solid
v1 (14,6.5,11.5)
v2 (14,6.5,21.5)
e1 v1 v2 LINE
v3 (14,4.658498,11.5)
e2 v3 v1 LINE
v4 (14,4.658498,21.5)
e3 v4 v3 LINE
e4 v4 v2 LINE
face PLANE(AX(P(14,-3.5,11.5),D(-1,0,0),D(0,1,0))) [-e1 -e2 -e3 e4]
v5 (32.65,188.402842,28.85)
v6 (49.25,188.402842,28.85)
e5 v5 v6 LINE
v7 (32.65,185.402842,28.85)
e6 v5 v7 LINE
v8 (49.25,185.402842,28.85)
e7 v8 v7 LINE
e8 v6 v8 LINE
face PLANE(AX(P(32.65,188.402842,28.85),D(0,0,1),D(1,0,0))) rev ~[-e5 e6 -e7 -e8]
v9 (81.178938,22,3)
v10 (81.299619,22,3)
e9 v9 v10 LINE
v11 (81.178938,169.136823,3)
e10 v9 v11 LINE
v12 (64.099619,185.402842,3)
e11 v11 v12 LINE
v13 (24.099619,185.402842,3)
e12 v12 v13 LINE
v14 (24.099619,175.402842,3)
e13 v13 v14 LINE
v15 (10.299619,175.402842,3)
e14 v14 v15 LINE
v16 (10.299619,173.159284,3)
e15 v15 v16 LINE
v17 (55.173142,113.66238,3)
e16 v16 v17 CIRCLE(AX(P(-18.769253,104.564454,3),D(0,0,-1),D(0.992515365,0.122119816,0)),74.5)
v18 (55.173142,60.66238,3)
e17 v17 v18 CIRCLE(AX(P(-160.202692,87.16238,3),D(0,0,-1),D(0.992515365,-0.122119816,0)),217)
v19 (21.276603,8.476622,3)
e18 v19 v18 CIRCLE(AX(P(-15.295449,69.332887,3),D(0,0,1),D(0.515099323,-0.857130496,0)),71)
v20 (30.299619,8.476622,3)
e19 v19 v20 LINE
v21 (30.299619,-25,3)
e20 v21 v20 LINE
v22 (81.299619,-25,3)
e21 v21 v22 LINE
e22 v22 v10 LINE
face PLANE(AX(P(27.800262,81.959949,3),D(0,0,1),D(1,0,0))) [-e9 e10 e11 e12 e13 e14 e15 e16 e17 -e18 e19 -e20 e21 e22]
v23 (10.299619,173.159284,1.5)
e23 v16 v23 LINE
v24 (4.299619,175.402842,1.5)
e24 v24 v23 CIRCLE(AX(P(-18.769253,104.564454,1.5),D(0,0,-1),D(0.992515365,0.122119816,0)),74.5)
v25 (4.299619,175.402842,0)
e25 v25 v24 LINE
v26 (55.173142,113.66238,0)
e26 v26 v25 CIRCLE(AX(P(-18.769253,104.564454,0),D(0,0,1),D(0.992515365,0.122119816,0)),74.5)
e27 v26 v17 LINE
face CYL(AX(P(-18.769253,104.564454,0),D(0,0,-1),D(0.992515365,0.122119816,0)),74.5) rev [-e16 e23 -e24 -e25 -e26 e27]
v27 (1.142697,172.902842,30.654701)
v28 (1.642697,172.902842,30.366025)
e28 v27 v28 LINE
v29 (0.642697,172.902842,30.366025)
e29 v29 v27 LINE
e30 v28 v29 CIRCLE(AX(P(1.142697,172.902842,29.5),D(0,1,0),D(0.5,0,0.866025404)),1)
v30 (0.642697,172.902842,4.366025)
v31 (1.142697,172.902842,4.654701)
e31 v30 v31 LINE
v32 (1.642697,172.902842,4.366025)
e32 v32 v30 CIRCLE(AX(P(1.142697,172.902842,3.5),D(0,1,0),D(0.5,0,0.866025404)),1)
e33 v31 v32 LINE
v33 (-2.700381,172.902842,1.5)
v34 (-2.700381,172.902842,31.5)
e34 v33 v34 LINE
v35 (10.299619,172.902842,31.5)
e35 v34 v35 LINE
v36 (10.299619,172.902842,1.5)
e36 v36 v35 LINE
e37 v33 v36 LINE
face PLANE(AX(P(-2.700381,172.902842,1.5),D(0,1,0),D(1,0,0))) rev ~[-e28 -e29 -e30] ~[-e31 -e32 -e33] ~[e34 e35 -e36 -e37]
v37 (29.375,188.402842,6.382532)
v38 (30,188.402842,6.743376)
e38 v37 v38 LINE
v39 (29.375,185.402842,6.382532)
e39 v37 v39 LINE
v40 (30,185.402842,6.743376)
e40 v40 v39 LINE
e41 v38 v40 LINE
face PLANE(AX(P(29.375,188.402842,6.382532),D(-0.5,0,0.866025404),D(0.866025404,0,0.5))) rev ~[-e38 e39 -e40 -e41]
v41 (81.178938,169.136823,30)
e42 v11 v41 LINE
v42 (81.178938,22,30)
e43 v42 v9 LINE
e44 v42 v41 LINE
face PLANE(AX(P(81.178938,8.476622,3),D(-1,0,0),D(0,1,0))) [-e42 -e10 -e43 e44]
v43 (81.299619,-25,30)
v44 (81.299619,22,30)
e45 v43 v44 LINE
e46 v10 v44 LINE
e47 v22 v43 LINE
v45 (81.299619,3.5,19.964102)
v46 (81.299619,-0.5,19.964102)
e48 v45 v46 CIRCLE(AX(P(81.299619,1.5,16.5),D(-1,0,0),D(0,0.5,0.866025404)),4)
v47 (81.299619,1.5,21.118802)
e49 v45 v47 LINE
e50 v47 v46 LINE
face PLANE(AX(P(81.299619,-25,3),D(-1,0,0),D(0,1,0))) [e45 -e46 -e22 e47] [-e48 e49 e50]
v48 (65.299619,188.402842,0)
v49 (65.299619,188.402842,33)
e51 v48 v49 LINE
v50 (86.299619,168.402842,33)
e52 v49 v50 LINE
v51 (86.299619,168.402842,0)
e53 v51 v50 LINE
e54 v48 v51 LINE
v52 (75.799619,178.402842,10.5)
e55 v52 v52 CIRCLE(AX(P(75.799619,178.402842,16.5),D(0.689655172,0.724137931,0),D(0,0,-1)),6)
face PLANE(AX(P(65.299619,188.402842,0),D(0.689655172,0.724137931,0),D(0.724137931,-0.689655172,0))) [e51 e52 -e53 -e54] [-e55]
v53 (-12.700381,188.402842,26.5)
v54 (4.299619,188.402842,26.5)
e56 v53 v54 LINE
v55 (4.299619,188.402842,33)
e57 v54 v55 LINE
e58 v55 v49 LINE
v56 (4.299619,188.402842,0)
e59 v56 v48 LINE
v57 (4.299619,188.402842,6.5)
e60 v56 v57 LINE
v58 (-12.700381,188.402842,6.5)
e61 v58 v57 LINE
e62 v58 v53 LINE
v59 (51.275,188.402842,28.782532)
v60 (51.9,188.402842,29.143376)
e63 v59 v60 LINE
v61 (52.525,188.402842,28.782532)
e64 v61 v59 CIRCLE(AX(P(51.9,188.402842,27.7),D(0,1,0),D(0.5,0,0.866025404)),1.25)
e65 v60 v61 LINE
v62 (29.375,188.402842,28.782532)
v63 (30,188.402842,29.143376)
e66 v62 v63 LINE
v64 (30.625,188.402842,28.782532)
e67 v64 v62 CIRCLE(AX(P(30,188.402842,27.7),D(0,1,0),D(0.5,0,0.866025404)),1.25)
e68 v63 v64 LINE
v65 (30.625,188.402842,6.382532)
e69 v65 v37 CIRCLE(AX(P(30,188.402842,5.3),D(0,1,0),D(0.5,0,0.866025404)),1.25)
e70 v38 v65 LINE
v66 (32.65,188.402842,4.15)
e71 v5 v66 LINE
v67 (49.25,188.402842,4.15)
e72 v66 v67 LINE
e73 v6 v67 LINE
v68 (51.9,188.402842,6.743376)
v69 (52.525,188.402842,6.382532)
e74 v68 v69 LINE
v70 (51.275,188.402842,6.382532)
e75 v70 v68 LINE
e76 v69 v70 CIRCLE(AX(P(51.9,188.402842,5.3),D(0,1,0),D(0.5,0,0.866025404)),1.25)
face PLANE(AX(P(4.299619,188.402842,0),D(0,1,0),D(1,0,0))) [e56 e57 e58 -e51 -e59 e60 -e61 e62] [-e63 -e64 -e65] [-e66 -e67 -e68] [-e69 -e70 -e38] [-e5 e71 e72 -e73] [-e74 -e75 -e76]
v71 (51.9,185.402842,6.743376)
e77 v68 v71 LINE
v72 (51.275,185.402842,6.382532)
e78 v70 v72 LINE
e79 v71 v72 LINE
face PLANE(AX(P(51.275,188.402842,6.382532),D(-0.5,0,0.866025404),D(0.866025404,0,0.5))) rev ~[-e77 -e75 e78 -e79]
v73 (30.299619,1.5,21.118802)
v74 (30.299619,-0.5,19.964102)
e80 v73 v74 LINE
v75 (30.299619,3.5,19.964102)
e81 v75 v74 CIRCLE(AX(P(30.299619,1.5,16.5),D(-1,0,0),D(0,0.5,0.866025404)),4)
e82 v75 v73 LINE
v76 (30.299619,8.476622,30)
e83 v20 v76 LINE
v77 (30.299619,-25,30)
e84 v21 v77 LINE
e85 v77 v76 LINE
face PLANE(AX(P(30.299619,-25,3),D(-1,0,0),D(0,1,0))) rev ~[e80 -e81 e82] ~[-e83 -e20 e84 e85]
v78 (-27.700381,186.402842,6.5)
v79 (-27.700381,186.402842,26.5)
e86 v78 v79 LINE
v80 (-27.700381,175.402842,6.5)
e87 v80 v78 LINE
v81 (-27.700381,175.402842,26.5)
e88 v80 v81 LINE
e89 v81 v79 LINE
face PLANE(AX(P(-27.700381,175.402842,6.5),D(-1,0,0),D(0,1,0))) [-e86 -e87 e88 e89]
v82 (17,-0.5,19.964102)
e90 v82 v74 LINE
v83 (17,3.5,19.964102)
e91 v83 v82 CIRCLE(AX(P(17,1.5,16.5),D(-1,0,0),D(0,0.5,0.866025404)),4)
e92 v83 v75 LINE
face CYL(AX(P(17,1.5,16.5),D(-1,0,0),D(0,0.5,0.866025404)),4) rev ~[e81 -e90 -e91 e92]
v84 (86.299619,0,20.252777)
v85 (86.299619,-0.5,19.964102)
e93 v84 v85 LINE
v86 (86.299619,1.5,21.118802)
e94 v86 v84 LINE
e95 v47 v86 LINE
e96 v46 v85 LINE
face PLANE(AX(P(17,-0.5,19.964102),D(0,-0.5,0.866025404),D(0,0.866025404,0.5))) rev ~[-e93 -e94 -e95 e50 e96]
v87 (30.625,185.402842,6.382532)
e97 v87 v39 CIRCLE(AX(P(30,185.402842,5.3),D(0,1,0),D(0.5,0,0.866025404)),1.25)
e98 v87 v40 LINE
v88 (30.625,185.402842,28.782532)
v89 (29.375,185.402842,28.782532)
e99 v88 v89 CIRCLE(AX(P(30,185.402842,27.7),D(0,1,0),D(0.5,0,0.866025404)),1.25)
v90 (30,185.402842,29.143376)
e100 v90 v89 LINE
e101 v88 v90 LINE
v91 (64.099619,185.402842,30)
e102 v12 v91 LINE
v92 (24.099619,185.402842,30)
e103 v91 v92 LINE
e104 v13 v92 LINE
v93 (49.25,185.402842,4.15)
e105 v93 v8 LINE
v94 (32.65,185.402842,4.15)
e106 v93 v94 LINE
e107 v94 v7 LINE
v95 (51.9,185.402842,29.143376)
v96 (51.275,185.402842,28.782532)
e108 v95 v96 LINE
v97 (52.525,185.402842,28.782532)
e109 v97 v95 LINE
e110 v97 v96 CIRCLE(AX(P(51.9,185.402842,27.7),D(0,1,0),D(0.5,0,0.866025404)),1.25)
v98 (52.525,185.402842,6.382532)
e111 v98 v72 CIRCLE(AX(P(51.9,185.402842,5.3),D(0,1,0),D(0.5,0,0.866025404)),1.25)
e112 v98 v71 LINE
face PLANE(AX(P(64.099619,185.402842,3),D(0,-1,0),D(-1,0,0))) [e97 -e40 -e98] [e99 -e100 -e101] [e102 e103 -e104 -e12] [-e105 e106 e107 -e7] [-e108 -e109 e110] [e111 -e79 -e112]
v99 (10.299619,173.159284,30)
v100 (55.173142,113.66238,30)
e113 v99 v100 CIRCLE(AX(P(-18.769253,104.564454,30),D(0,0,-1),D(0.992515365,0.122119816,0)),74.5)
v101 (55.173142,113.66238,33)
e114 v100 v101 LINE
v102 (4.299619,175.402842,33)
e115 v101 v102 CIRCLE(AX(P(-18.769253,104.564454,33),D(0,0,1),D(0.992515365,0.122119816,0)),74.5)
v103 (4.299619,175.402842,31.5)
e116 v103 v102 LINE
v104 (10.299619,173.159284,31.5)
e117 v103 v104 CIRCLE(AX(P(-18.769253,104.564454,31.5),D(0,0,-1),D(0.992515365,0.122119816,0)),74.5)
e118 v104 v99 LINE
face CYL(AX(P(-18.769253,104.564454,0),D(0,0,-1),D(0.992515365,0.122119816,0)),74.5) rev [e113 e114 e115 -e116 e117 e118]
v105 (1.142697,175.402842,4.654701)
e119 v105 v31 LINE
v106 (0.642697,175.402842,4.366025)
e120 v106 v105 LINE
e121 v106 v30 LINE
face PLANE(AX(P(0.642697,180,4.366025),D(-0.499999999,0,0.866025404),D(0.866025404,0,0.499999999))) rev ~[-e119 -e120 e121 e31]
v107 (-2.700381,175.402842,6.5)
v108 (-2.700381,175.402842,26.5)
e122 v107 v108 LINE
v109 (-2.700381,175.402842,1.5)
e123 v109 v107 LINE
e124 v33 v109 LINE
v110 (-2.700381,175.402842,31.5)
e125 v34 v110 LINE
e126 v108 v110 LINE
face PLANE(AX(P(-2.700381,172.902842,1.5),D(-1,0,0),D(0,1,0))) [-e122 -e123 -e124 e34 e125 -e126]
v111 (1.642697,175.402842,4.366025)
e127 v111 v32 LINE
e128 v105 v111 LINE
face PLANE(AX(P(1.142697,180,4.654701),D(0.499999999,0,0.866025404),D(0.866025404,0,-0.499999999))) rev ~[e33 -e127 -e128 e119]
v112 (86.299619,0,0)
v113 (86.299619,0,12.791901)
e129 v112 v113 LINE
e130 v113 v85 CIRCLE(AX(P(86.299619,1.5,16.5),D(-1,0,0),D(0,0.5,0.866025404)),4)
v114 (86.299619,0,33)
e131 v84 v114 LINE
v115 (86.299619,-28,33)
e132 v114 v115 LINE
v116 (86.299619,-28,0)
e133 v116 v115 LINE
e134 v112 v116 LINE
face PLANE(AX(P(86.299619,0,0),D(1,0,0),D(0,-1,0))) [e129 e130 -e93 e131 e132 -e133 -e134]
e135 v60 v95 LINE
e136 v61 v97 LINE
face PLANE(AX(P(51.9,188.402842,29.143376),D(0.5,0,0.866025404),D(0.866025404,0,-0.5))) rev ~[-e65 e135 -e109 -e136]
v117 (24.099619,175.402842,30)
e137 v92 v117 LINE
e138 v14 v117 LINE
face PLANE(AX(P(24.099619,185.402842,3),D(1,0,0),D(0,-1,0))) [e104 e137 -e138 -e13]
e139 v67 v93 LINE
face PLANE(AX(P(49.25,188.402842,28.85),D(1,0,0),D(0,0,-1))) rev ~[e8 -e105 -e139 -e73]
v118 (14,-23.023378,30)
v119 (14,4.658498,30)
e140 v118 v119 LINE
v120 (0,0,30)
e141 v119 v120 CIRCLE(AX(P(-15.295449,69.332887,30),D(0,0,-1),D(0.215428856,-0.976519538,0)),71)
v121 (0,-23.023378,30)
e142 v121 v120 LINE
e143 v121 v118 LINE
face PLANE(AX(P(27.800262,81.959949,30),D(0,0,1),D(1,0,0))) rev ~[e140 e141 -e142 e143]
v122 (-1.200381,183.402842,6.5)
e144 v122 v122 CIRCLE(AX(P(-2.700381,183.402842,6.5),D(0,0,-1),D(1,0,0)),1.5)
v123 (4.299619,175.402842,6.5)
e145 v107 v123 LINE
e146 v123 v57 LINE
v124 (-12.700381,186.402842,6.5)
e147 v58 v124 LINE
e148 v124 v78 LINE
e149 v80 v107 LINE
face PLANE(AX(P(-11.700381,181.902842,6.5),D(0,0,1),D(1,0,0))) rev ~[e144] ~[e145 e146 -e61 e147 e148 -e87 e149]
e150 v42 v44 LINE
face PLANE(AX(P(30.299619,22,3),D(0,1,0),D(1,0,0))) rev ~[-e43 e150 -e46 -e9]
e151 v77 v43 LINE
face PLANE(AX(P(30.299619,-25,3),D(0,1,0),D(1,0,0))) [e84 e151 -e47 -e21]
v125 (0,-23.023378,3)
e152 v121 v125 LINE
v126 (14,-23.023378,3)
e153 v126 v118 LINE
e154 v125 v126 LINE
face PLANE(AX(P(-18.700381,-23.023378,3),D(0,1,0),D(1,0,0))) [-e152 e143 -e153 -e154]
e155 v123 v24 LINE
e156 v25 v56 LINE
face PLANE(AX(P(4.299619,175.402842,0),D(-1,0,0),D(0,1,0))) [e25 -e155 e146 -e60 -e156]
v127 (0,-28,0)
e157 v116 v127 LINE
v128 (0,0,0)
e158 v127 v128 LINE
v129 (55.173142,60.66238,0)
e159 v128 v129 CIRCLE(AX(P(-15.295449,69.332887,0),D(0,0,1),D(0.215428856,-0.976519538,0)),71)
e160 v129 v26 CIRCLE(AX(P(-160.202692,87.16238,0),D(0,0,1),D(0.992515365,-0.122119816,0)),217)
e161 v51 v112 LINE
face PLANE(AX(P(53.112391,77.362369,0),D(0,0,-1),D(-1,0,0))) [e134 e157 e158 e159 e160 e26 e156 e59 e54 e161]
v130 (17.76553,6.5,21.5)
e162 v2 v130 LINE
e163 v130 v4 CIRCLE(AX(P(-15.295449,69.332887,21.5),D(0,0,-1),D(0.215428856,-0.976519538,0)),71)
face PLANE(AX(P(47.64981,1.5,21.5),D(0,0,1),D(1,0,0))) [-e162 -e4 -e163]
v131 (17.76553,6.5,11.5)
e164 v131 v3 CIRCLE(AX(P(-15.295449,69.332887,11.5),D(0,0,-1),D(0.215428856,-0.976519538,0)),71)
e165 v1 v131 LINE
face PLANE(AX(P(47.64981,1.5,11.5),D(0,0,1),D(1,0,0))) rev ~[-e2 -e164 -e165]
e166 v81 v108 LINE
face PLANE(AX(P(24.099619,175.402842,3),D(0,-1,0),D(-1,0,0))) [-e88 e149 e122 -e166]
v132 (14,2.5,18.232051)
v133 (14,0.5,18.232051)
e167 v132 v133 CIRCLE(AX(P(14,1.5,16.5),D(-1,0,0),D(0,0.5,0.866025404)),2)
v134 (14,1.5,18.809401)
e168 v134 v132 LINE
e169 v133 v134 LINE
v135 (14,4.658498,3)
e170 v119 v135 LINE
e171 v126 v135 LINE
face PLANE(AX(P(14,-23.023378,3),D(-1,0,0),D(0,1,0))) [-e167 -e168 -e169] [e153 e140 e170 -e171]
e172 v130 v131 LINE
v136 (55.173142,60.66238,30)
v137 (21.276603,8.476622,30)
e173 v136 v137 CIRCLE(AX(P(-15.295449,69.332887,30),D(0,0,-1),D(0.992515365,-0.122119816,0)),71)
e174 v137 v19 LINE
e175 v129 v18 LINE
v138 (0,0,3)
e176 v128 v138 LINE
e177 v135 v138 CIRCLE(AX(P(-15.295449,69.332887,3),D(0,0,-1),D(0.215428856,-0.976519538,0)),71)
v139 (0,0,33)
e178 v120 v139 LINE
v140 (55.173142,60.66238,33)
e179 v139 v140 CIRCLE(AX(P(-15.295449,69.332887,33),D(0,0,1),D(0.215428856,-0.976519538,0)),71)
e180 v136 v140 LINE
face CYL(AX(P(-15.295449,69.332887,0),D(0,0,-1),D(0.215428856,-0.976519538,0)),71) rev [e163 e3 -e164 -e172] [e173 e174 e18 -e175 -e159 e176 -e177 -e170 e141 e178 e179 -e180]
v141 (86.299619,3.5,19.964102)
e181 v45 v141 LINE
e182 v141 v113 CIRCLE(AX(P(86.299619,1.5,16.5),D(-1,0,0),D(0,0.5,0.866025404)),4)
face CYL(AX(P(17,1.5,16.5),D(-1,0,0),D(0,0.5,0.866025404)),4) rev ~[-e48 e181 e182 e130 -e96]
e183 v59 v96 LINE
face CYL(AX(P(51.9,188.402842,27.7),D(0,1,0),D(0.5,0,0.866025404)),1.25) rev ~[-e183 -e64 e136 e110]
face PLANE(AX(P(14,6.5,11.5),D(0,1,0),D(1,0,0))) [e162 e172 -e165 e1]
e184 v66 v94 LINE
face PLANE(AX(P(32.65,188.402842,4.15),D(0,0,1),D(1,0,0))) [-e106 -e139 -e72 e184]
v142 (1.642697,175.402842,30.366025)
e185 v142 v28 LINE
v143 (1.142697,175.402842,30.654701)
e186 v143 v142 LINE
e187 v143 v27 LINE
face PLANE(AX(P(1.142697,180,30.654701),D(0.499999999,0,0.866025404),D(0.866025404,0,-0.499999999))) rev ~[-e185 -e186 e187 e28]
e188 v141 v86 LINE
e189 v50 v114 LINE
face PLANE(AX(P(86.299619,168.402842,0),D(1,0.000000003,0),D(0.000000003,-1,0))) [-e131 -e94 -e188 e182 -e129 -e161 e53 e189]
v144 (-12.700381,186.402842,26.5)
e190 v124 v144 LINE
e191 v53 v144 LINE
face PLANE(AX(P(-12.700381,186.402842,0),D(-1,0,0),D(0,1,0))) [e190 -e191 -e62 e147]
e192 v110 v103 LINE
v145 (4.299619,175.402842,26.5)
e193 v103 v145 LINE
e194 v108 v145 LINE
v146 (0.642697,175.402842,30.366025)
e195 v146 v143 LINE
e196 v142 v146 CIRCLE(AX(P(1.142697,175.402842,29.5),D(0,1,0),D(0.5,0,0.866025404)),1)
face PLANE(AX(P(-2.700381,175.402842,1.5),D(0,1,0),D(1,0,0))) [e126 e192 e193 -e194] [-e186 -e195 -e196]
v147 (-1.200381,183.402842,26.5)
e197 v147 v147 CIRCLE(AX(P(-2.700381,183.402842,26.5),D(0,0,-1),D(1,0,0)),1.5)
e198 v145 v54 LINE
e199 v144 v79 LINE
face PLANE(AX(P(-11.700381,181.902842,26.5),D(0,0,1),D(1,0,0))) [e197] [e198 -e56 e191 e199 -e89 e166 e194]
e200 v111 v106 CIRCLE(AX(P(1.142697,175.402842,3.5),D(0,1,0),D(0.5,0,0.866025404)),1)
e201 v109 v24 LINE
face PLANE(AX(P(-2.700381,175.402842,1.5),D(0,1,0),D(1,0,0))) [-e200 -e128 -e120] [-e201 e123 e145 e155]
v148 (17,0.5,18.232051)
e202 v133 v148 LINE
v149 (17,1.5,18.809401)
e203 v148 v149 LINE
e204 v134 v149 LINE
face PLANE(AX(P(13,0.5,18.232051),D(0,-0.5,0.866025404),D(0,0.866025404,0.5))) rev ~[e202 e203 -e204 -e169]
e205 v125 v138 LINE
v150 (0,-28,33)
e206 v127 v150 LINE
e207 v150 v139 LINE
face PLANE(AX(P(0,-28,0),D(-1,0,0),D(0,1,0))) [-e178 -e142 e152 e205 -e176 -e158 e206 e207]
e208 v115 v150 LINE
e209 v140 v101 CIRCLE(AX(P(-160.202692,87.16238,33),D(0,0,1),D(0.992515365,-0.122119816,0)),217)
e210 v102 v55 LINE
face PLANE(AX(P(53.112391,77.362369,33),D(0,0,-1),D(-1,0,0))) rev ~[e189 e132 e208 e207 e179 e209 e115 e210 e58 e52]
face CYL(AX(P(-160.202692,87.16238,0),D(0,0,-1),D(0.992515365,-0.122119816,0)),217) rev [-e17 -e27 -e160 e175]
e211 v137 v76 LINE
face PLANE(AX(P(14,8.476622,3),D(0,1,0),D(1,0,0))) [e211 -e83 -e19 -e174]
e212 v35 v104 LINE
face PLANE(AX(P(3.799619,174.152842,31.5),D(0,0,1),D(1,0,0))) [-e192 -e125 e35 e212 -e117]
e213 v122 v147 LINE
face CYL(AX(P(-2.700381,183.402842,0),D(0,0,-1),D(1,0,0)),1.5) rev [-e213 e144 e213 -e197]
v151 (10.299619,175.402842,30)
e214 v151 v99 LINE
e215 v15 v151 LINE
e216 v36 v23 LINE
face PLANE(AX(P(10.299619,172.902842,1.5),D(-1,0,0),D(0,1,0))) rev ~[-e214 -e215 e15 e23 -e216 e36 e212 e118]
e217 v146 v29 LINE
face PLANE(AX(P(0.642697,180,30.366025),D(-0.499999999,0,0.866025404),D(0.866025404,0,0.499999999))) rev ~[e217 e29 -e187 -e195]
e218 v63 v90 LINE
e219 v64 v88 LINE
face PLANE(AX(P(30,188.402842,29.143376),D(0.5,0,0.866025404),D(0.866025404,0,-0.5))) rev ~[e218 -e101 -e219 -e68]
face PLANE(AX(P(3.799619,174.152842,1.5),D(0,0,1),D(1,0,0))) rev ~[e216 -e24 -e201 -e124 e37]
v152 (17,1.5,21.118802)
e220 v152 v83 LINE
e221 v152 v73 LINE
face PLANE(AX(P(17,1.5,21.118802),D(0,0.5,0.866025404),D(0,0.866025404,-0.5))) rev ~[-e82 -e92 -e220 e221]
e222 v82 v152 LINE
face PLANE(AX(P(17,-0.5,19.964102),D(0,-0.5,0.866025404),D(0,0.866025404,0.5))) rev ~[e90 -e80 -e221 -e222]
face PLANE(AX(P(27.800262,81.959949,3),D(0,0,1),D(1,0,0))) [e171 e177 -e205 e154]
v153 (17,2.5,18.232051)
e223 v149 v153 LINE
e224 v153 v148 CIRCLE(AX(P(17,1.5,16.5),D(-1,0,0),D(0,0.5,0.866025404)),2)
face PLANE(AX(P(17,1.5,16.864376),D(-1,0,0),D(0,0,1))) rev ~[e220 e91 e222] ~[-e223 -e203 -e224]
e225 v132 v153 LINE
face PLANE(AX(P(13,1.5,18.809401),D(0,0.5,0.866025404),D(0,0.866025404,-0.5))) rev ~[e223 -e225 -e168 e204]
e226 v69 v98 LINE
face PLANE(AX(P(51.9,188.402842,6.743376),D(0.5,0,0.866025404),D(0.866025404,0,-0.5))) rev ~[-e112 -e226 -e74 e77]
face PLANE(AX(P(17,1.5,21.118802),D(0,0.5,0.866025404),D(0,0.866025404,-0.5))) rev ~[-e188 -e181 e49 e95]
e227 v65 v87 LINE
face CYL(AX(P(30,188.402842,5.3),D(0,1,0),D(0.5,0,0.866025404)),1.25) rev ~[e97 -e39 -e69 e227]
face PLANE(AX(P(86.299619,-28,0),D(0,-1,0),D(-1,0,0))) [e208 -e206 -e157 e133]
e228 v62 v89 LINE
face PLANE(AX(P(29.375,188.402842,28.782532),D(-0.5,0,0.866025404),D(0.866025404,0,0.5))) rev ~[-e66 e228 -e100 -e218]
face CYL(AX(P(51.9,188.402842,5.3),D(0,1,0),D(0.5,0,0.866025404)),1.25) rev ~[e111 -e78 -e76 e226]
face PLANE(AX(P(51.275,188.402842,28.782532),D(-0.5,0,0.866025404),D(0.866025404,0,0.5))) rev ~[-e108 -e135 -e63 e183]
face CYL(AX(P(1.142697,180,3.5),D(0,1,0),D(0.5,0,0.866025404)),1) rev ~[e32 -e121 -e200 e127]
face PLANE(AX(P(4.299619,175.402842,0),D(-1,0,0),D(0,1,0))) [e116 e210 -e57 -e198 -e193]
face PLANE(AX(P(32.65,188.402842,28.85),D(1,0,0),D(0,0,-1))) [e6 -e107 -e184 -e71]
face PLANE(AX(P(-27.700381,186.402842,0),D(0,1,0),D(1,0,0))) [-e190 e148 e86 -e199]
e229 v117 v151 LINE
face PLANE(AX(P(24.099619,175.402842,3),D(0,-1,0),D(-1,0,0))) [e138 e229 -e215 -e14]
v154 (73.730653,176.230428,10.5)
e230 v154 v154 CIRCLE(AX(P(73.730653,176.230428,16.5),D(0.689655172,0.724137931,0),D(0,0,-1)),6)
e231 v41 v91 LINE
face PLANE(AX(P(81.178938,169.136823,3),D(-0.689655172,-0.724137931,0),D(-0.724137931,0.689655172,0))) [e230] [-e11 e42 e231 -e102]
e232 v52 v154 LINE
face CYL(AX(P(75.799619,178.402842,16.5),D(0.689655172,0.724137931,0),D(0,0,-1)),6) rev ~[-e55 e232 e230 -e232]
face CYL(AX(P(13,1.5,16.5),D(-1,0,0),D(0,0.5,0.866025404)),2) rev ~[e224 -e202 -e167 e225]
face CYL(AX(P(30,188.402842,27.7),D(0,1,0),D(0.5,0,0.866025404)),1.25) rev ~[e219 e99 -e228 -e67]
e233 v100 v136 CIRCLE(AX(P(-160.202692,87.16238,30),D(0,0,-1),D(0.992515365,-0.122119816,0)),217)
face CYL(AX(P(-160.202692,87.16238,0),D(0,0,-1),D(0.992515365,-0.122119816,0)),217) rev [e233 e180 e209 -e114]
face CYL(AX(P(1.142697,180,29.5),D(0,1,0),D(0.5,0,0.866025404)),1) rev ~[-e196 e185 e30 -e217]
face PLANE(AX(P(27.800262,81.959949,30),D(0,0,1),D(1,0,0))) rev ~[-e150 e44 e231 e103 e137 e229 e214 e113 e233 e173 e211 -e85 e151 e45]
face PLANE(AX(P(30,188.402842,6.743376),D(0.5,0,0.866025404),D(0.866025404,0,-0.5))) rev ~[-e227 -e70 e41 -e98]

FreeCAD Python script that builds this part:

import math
import FreeCAD as App
import Part
import Sketcher
from FreeCAD import Vector
Q = App.Units.Quantity

doc = App.newDocument("Part")
body = doc.addObject("PartDesign::Body", "Body")

# Sketch on XY plane
sketch1 = doc.addObject("Sketcher::SketchObject", "Sketch")
body.addObject(sketch1)
sketch1.AttachmentSupport = (doc.XY_Plane, [""])
sketch1.MapMode = "FlatFace"
sketch1.addGeometry(Part.LineSegment(Vector(4, 188, 0), Vector(4, 175, 0)), False)
sketch1.addGeometry(Part.ArcOfCircle(Part.Circle(Vector(-19, 105, 0), Vector(0, 0, 1), 75), math.radians(7), math.radians(72)), False)
sketch1.addGeometry(Part.ArcOfCircle(Part.Circle(Vector(-160, 87, 0), Vector(0, 0, 1), 217), math.radians(-7.01), math.radians(7.01)), False)
sketch1.addGeometry(Part.ArcOfCircle(Part.Circle(Vector(-15, 69, 0), Vector(0, 0, 1), 71), math.radians(-78), math.radians(-7)), False)
sketch1.addGeometry(Part.LineSegment(Vector(0, 0, 0), Vector(0, -28, 0)), False)
sketch1.addGeometry(Part.LineSegment(Vector(0, -28, 0), Vector(86, -28, 0)), False)
sketch1.addGeometry(Part.LineSegment(Vector(86, -28, 0), Vector(86, 0, 0)), False)
sketch1.addGeometry(Part.LineSegment(Vector(86, 0, 0), Vector(86, 168, 0)), False)
sketch1.addGeometry(Part.LineSegment(Vector(86, 168, 0), Vector(65, 188, 0)), False)
sketch1.addGeometry(Part.LineSegment(Vector(65, 188, 0), Vector(4, 188, 0)), False)
sketch1.addConstraint(Sketcher.Constraint("Coincident", 0, 2, 1, 2))
sketch1.addConstraint(Sketcher.Constraint("Tangent", 1, 1, 2, 2))
sketch1.addConstraint(Sketcher.Constraint("Tangent", 2, 1, 3, 2))
sketch1.addConstraint(Sketcher.Constraint("Coincident", 3, 1, 4, 1))
sketch1.addConstraint(Sketcher.Constraint("Coincident", 4, 2, 5, 1))
sketch1.addConstraint(Sketcher.Constraint("Coincident", 5, 2, 6, 1))
sketch1.addConstraint(Sketcher.Constraint("Coincident", 6, 2, 7, 1))
sketch1.addConstraint(Sketcher.Constraint("Coincident", 7, 2, 8, 1))
sketch1.addConstraint(Sketcher.Constraint("Coincident", 8, 2, 9, 1))
sketch1.addConstraint(Sketcher.Constraint("Coincident", 9, 2, 0, 1))
sketch1.addConstraint(Sketcher.Constraint("Vertical", 0))
sketch1.addConstraint(Sketcher.Constraint("Vertical", 4))
sketch1.addConstraint(Sketcher.Constraint("Horizontal", 5))
sketch1.addConstraint(Sketcher.Constraint("Vertical", 6))
sketch1.addConstraint(Sketcher.Constraint("Vertical", 7))
sketch1.addConstraint(Sketcher.Constraint("Horizontal", 9))
sketch1.addConstraint(Sketcher.Constraint("Coincident", 3, 1, -1, 1))
sketch1.addConstraint(Sketcher.Constraint("PointOnObject", 6, 2, -1))
sketch1.addConstraint(Sketcher.Constraint("Vertical", 1, 1, 2, 1))
sketch1.addConstraint(Sketcher.Constraint("Radius", 2, 217.0))
sketch1.addConstraint(Sketcher.Constraint("Radius", 3, 71.0))
sketch1.addConstraint(Sketcher.Constraint("Radius", 1, 74.5))
sketch1.addConstraint(Sketcher.Constraint("DistanceX", 9, 2, 9, 1, 61.0))
sketch1.addConstraint(Sketcher.Constraint("DistanceY", 0, 2, 0, 1, 13.0))
sketch1.addConstraint(Sketcher.Constraint("DistanceY", 4, 2, 4, 1, 28.0))
sketch1.addConstraint(Sketcher.Constraint("Distance", 8, 29.0))
sketch1.addConstraint(Sketcher.Constraint("DistanceY", 2, 1, 1, 1, 53.0))
sketch1.addConstraint(Sketcher.Constraint("DistanceX", 0, 2, 7, 2, 82.0))
sketch1.addConstraint(Sketcher.Constraint("DistanceX", 5, 1, 5, 2, 86.299619))
sketch1.addConstraint(Sketcher.Constraint("DistanceY", 7, 1, 7, 2, 168.402842))
pad1 = doc.addObject("PartDesign::Pad", "Pad")
body.addObject(pad1)
pad1.Profile = sketch1
pad1.Length = 33

# Sketch on XY plane
sketch2 = doc.addObject("Sketcher::SketchObject", "Sketch001")
body.addObject(sketch2)
sketch2.AttachmentSupport = (doc.XY_Plane, [""])
sketch2.MapMode = "FlatFace"
sketch2.AttachmentOffset = App.Placement(Vector(0, 0, 3), App.Rotation())
sketch2.addGeometry(Part.LineSegment(Vector(24, 175, 0), Vector(4, 175, 0)), False)
sketch2.addGeometry(Part.LineSegment(Vector(4, 175, 0), Vector(4, 169, 0)), False)
sketch2.addGeometry(Part.LineSegment(Vector(4, 169, 0), Vector(-19, 169, 0)), False)
sketch2.addGeometry(Part.LineSegment(Vector(-19, 169, 0), Vector(-19, -23, 0)), False)
sketch2.addGeometry(Part.LineSegment(Vector(-19, -23, 0), Vector(14, -23, 0)), False)
sketch2.addGeometry(Part.LineSegment(Vector(14, -23, 0), Vector(14, 8, 0)), False)
sketch2.addGeometry(Part.LineSegment(Vector(14, 8, 0), Vector(81, 8, 0)), False)
sketch2.addGeometry(Part.LineSegment(Vector(81, 8, 0), Vector(81, 169, 0)), False)
sketch2.addGeometry(Part.LineSegment(Vector(81, 169, 0), Vector(64, 185, 0)), False)
sketch2.addGeometry(Part.LineSegment(Vector(64, 185, 0), Vector(24, 185, 0)), False)
sketch2.addGeometry(Part.LineSegment(Vector(24, 185, 0), Vector(24, 175, 0)), False)
sketch2.addConstraint(Sketcher.Constraint("Coincident", 0, 2, 1, 1))
sketch2.addConstraint(Sketcher.Constraint("Coincident", 1, 2, 2, 1))
sketch2.addConstraint(Sketcher.Constraint("Coincident", 2, 2, 3, 1))
sketch2.addConstraint(Sketcher.Constraint("Coincident", 3, 2, 4, 1))
sketch2.addConstraint(Sketcher.Constraint("Coincident", 4, 2, 5, 1))
sketch2.addConstraint(Sketcher.Constraint("Coincident", 5, 2, 6, 1))
sketch2.addConstraint(Sketcher.Constraint("Coincident", 6, 2, 7, 1))
sketch2.addConstraint(Sketcher.Constraint("Coincident", 7, 2, 8, 1))
sketch2.addConstraint(Sketcher.Constraint("Coincident", 8, 2, 9, 1))
sketch2.addConstraint(Sketcher.Constraint("Coincident", 9, 2, 10, 1))
sketch2.addConstraint(Sketcher.Constraint("Coincident", 10, 2, 0, 1))
sketch2.addConstraint(Sketcher.Constraint("Horizontal", 0))
sketch2.addConstraint(Sketcher.Constraint("Vertical", 1))
sketch2.addConstraint(Sketcher.Constraint("Horizontal", 2))
sketch2.addConstraint(Sketcher.Constraint("Vertical", 3))
sketch2.addConstraint(Sketcher.Constraint("Horizontal", 4))
sketch2.addConstraint(Sketcher.Constraint("Vertical", 5))
sketch2.addConstraint(Sketcher.Constraint("Horizontal", 6))
sketch2.addConstraint(Sketcher.Constraint("Vertical", 7))
sketch2.addConstraint(Sketcher.Constraint("Horizontal", 9))
sketch2.addConstraint(Sketcher.Constraint("Vertical", 10))
sketch2.addConstraint(Sketcher.Constraint("Horizontal", 2, 2, 7, 2))
sketch2.addConstraint(Sketcher.Constraint("DistanceX", 2, 2, 2, 1, 23.0))
sketch2.addConstraint(Sketcher.Constraint("DistanceX", 9, 2, 9, 1, 40.0))
sketch2.addConstraint(Sketcher.Constraint("DistanceY", 10, 2, 10, 1, 10.0))
sketch2.addConstraint(Sketcher.Constraint("DistanceX", 0, 2, 0, 1, 19.8))
sketch2.addConstraint(Sketcher.Constraint("DistanceY", 5, 1, 5, 2, 31.5))
sketch2.addConstraint(Sketcher.Constraint("DistanceX", -1, 1, 4, 2, 14.0))
sketch2.addConstraint(Sketcher.Constraint("DistanceY", 3, 2, 3, 1, 192.160201))
sketch2.addConstraint(Sketcher.Constraint("DistanceX", 4, 1, 4, 2, 32.700381))
sketch2.addConstraint(Sketcher.Constraint("DistanceX", 6, 1, 6, 2, 67.178938))
sketch2.addConstraint(Sketcher.Constraint("DistanceY", 1, 2, 1, 1, 6.266019))
sketch2.addConstraint(Sketcher.Constraint("DistanceY", -1, 1, 0, 2, 175.402842))
pocket1 = doc.addObject("PartDesign::Pocket", "Pocket")
body.addObject(pocket1)
pocket1.Profile = sketch2
pocket1.Length = 27
pocket1.Reversed = True

# Sketch on XY plane
sketch3 = doc.addObject("Sketcher::SketchObject", "Sketch002")
body.addObject(sketch3)
sketch3.AttachmentSupport = (doc.XY_Plane, [""])
sketch3.MapMode = "FlatFace"
sketch3.AttachmentOffset = App.Placement(Vector(0, 0, 6.5), App.Rotation())
sketch3.addGeometry(Part.LineSegment(Vector(-28, 188, 0), Vector(-28, 175, 0)), False)
sketch3.addGeometry(Part.LineSegment(Vector(-28, 175, 0), Vector(4, 175, 0)), False)
sketch3.addGeometry(Part.LineSegment(Vector(4, 175, 0), Vector(4, 188, 0)), False)
sketch3.addGeometry(Part.LineSegment(Vector(4, 188, 0), Vector(-28, 188, 0)), False)
sketch3.addConstraint(Sketcher.Constraint("Coincident", 0, 2, 1, 1))
sketch3.addConstraint(Sketcher.Constraint("Coincident", 1, 2, 2, 1))
sketch3.addConstraint(Sketcher.Constraint("Coincident", 2, 2, 3, 1))
sketch3.addConstraint(Sketcher.Constraint("Coincident", 3, 2, 0, 1))
sketch3.addConstraint(Sketcher.Constraint("Vertical", 0))
sketch3.addConstraint(Sketcher.Constraint("Horizontal", 1))
sketch3.addConstraint(Sketcher.Constraint("Vertical", 2))
sketch3.addConstraint(Sketcher.Constraint("Horizontal", 3))
sketch3.addConstraint(Sketcher.Constraint("DistanceX", 1, 1, 1, 2, 32.0))
sketch3.addConstraint(Sketcher.Constraint("DistanceY", 0, 2, 0, 1, 13.0))
sketch3.addConstraint(Sketcher.Constraint("DistanceX", 0, 2, -1, 1, 27.700381))
sketch3.addConstraint(Sketcher.Constraint("DistanceY", -1, 1, 0, 2, 175.402842))
pad2 = doc.addObject("PartDesign::Pad", "Pad001")
body.addObject(pad2)
pad2.Profile = sketch3
pad2.Length = 20

# Sketch on XY plane
sketch4 = doc.addObject("Sketcher::SketchObject", "Sketch003")
body.addObject(sketch4)
sketch4.AttachmentSupport = (doc.XY_Plane, [""])
sketch4.MapMode = "FlatFace"
sketch4.AttachmentOffset = App.Placement(Vector(0, 0, 1.5), App.Rotation())
sketch4.addGeometry(Part.LineSegment(Vector(-2.7, 175.4, 0), Vector(-2.7, 172.9, 0)), False)
sketch4.addGeometry(Part.LineSegment(Vector(-2.7, 172.9, 0), Vector(10.3, 172.9, 0)), False)
sketch4.addGeometry(Part.LineSegment(Vector(10.3, 172.9, 0), Vector(10.3, 175.4, 0)), False)
sketch4.addGeometry(Part.LineSegment(Vector(10.3, 175.4, 0), Vector(-2.7, 175.4, 0)), False)
sketch4.addConstraint(Sketcher.Constraint("Coincident", 0, 2, 1, 1))
sketch4.addConstraint(Sketcher.Constraint("Coincident", 1, 2, 2, 1))
sketch4.addConstraint(Sketcher.Constraint("Coincident", 2, 2, 3, 1))
sketch4.addConstraint(Sketcher.Constraint("Coincident", 3, 2, 0, 1))
sketch4.addConstraint(Sketcher.Constraint("Vertical", 0))
sketch4.addConstraint(Sketcher.Constraint("Horizontal", 1))
sketch4.addConstraint(Sketcher.Constraint("Vertical", 2))
sketch4.addConstraint(Sketcher.Constraint("Horizontal", 3))
sketch4.addConstraint(Sketcher.Constraint("DistanceX", 1, 1, 1, 2, 13.0))
sketch4.addConstraint(Sketcher.Constraint("DistanceY", 0, 2, 0, 1, 2.5))
sketch4.addConstraint(Sketcher.Constraint("DistanceX", 0, 2, -1, 1, 2.700381))
sketch4.addConstraint(Sketcher.Constraint("DistanceY", -1, 1, 0, 2, 172.902842))
pad3 = doc.addObject("PartDesign::Pad", "Pad002")
body.addObject(pad3)
pad3.Profile = sketch4
pad3.Length = 30

# Sketch on XZ plane
sketch5 = doc.addObject("Sketcher::SketchObject", "Sketch004")
body.addObject(sketch5)
sketch5.AttachmentSupport = (doc.XZ_Plane, [""])
sketch5.MapMode = "FlatFace"
sketch5.AttachmentOffset = App.Placement(Vector(0, 0, -180), App.Rotation())
sketch5.addGeometry(Part.LineSegment(Vector(1.1, 30.7, 0), Vector(1.6, 30.4, 0)), False)
sketch5.addGeometry(Part.ArcOfCircle(Part.Circle(Vector(1.1, 29.5, 0), Vector(0, 0, 1), 1), math.radians(120), math.radians(420)), False)
sketch5.addGeometry(Part.LineSegment(Vector(0.6, 30.4, 0), Vector(1.1, 30.7, 0)), False)
sketch5.addGeometry(Part.LineSegment(Vector(1.1, 4.7, 0), Vector(1.6, 4.4, 0)), False)
sketch5.addGeometry(Part.ArcOfCircle(Part.Circle(Vector(1.1, 3.5, 0), Vector(0, 0, 1), 1), math.radians(120), math.radians(420)), False)
sketch5.addGeometry(Part.LineSegment(Vector(0.6, 4.4, 0), Vector(1.1, 4.7, 0)), False)
sketch5.addConstraint(Sketcher.Constraint("Tangent", 0, 2, 1, 2))
sketch5.addConstraint(Sketcher.Constraint("Tangent", 1, 1, 2, 1))
sketch5.addConstraint(Sketcher.Constraint("Coincident", 2, 2, 0, 1))
sketch5.addConstraint(Sketcher.Constraint("Tangent", 3, 2, 4, 2))
sketch5.addConstraint(Sketcher.Constraint("Tangent", 4, 1, 5, 1))
sketch5.addConstraint(Sketcher.Constraint("Coincident", 5, 2, 3, 1))
sketch5.addConstraint(Sketcher.Constraint("Equal", 1, 4))
sketch5.addConstraint(Sketcher.Constraint("Parallel", 0, 3))
sketch5.addConstraint(Sketcher.Constraint("Parallel", 2, 5))
sketch5.addConstraint(Sketcher.Constraint("Horizontal", 0, 2, 1, 1))
sketch5.addConstraint(Sketcher.Constraint("Vertical", 1, 3, 4, 3))
sketch5.addConstraint(Sketcher.Constraint("Radius", 1, 1.0))
sketch5.addConstraint(Sketcher.Constraint("Angle", 0, Q("-30 deg")))
sketch5.addConstraint(Sketcher.Constraint("DistanceY", 4, 3, 1, 3, 26.0))
sketch5.addConstraint(Sketcher.Constraint("DistanceY", -1, 1, 1, 3, 29.5))
sketch5.addConstraint(Sketcher.Constraint("DistanceX", -1, 1, 1, 3, 1.142697))
pocket2 = doc.addObject("PartDesign::Pocket", "Pocket001")
body.addObject(pocket2)
pocket2.Profile = sketch5
pocket2.Length = 10
pocket2.Reversed = True

# Sketch on XY plane
sketch6 = doc.addObject("Sketcher::SketchObject", "Sketch005")
body.addObject(sketch6)
sketch6.AttachmentSupport = (doc.XY_Plane, [""])
sketch6.MapMode = "FlatFace"
sketch6.addGeometry(Part.Circle(Vector(-2.7, 183.4, 0), Vector(0, 0, 1), 1.5), False)
sketch6.addConstraint(Sketcher.Constraint("Diameter", 0, 3.0))
sketch6.addConstraint(Sketcher.Constraint("DistanceX", 0, 3, -1, 1, 2.700381))
sketch6.addConstraint(Sketcher.Constraint("DistanceY", -1, 1, 0, 3, 183.402842))
pocket3 = doc.addObject("PartDesign::Pocket", "Pocket002")
body.addObject(pocket3)
pocket3.Profile = sketch6
pocket3.Length = 30
pocket3.Reversed = True

# Sketch on XY plane
sketch7 = doc.addObject("Sketcher::SketchObject", "Sketch006")
body.addObject(sketch7)
sketch7.AttachmentSupport = (doc.XY_Plane, [""])
sketch7.MapMode = "FlatFace"
sketch7.addGeometry(Part.LineSegment(Vector(-27.7, 188.4, 0), Vector(-27.7, 186.4, 0)), False)
sketch7.addGeometry(Part.LineSegment(Vector(-27.7, 186.4, 0), Vector(-12.7, 186.4, 0)), False)
sketch7.addGeometry(Part.LineSegment(Vector(-12.7, 186.4, 0), Vector(-12.7, 188.4, 0)), False)
sketch7.addGeometry(Part.LineSegment(Vector(-12.7, 188.4, 0), Vector(-27.7, 188.4, 0)), False)
sketch7.addConstraint(Sketcher.Constraint("Coincident", 0, 2, 1, 1))
sketch7.addConstraint(Sketcher.Constraint("Coincident", 1, 2, 2, 1))
sketch7.addConstraint(Sketcher.Constraint("Coincident", 2, 2, 3, 1))
sketch7.addConstraint(Sketcher.Constraint("Coincident", 3, 2, 0, 1))
sketch7.addConstraint(Sketcher.Constraint("Vertical", 0))
sketch7.addConstraint(Sketcher.Constraint("Horizontal", 1))
sketch7.addConstraint(Sketcher.Constraint("Vertical", 2))
sketch7.addConstraint(Sketcher.Constraint("Horizontal", 3))
sketch7.addConstraint(Sketcher.Constraint("DistanceX", 1, 1, 1, 2, 15.0))
sketch7.addConstraint(Sketcher.Constraint("DistanceY", 0, 2, 0, 1, 2.0))
sketch7.addConstraint(Sketcher.Constraint("DistanceX", 0, 2, -1, 1, 27.700381))
sketch7.addConstraint(Sketcher.Constraint("DistanceY", -1, 1, 0, 2, 186.402842))
pocket4 = doc.addObject("PartDesign::Pocket", "Pocket003")
body.addObject(pocket4)
pocket4.Profile = sketch7
pocket4.Length = 30
pocket4.Reversed = True

# Sketch on XY plane
sketch8 = doc.addObject("Sketcher::SketchObject", "Sketch007")
body.addObject(sketch8)
sketch8.AttachmentSupport = (doc.XY_Plane, [""])
sketch8.MapMode = "FlatFace"
sketch8.AttachmentOffset = App.Placement(Vector(0, 0, 11.5), App.Rotation())
sketch8.addGeometry(Part.LineSegment(Vector(14, 6, 0), Vector(14, -4, 0)), False)
sketch8.addGeometry(Part.LineSegment(Vector(14, -4, 0), Vector(81, -4, 0)), False)
sketch8.addGeometry(Part.LineSegment(Vector(81, -4, 0), Vector(81, 6, 0)), False)
sketch8.addGeometry(Part.LineSegment(Vector(81, 6, 0), Vector(14, 6, 0)), False)
sketch8.addConstraint(Sketcher.Constraint("Coincident", 0, 2, 1, 1))
sketch8.addConstraint(Sketcher.Constraint("Coincident", 1, 2, 2, 1))
sketch8.addConstraint(Sketcher.Constraint("Coincident", 2, 2, 3, 1))
sketch8.addConstraint(Sketcher.Constraint("Coincident", 3, 2, 0, 1))
sketch8.addConstraint(Sketcher.Constraint("Vertical", 0))
sketch8.addConstraint(Sketcher.Constraint("Horizontal", 1))
sketch8.addConstraint(Sketcher.Constraint("Vertical", 2))
sketch8.addConstraint(Sketcher.Constraint("Horizontal", 3))
sketch8.addConstraint(Sketcher.Constraint("DistanceY", 0, 2, 0, 1, 10.0))
sketch8.addConstraint(Sketcher.Constraint("DistanceX", -1, 1, 0, 2, 14.0))
sketch8.addConstraint(Sketcher.Constraint("DistanceY", 0, 2, -1, 1, 3.5))
sketch8.addConstraint(Sketcher.Constraint("DistanceX", 1, 1, 1, 2, 67.299619))
pad4 = doc.addObject("PartDesign::Pad", "Pad003")
body.addObject(pad4)
pad4.Profile = sketch8
pad4.Length = 10

# Sketch on YZ plane
sketch9 = doc.addObject("Sketcher::SketchObject", "Sketch008")
body.addObject(sketch9)
sketch9.AttachmentSupport = (doc.YZ_Plane, [""])
sketch9.MapMode = "FlatFace"
sketch9.AttachmentOffset = App.Placement(Vector(0, 0, 17), App.Rotation())
sketch9.addGeometry(Part.LineSegment(Vector(3.5, 20, 0), Vector(1.5, 21.1, 0)), False)
sketch9.addGeometry(Part.LineSegment(Vector(1.5, 21.1, 0), Vector(-0.5, 20, 0)), False)
sketch9.addGeometry(Part.ArcOfCircle(Part.Circle(Vector(1.5, 16.5, 0), Vector(0, 0, 1), 4), math.radians(120), math.radians(420)), False)
sketch9.addConstraint(Sketcher.Constraint("Coincident", 0, 2, 1, 1))
sketch9.addConstraint(Sketcher.Constraint("Tangent", 1, 2, 2, 1))
sketch9.addConstraint(Sketcher.Constraint("Tangent", 2, 2, 0, 1))
sketch9.addConstraint(Sketcher.Constraint("Horizontal", 1, 2, 2, 2))
sketch9.addConstraint(Sketcher.Constraint("Radius", 2, 4.0))
sketch9.addConstraint(Sketcher.Constraint("Angle", 0, Q("150 deg")))
sketch9.addConstraint(Sketcher.Constraint("DistanceX", -1, 1, 2, 3, 1.5))
sketch9.addConstraint(Sketcher.Constraint("DistanceY", -1, 1, 2, 3, 16.5))
pocket5 = doc.addObject("PartDesign::Pocket", "Pocket004")
body.addObject(pocket5)
pocket5.Profile = sketch9
pocket5.Length = 75
pocket5.Reversed = True

# Sketch on YZ plane
sketch10 = doc.addObject("Sketcher::SketchObject", "Sketch009")
body.addObject(sketch10)
sketch10.AttachmentSupport = (doc.YZ_Plane, [""])
sketch10.MapMode = "FlatFace"
sketch10.AttachmentOffset = App.Placement(Vector(0, 0, 13), App.Rotation())
sketch10.addGeometry(Part.LineSegment(Vector(2.5, 18.2, 0), Vector(1.5, 18.8, 0)), False)
sketch10.addGeometry(Part.LineSegment(Vector(1.5, 18.8, 0), Vector(0.5, 18.2, 0)), False)
sketch10.addGeometry(Part.ArcOfCircle(Part.Circle(Vector(1.5, 16.5, 0), Vector(0, 0, 1), 2), math.radians(120), math.radians(420)), False)
sketch10.addConstraint(Sketcher.Constraint("Coincident", 0, 2, 1, 1))
sketch10.addConstraint(Sketcher.Constraint("Tangent", 1, 2, 2, 1))
sketch10.addConstraint(Sketcher.Constraint("Tangent", 2, 2, 0, 1))
sketch10.addConstraint(Sketcher.Constraint("Horizontal", 1, 2, 2, 2))
sketch10.addConstraint(Sketcher.Constraint("Radius", 2, 2.0))
sketch10.addConstraint(Sketcher.Constraint("Angle", 0, Q("150 deg")))
sketch10.addConstraint(Sketcher.Constraint("DistanceX", -1, 1, 2, 3, 1.5))
sketch10.addConstraint(Sketcher.Constraint("DistanceY", -1, 1, 2, 3, 16.5))
pocket6 = doc.addObject("PartDesign::Pocket", "Pocket005")
body.addObject(pocket6)
pocket6.Profile = sketch10
pocket6.Length = 5
pocket6.Reversed = True

# Sketch on XZ plane
sketch11 = doc.addObject("Sketcher::SketchObject", "Sketch010")
body.addObject(sketch11)
sketch11.AttachmentSupport = (doc.XZ_Plane, [""])
sketch11.MapMode = "FlatFace"
sketch11.AttachmentOffset = App.Placement(Vector(0, 0, -188.402842), App.Rotation())
sketch11.addGeometry(Part.LineSegment(Vector(32.6, 4.2, 0), Vector(32.6, 28.9, 0)), False)
sketch11.addGeometry(Part.LineSegment(Vector(32.6, 28.9, 0), Vector(49.2, 28.9, 0)), False)
sketch11.addGeometry(Part.LineSegment(Vector(49.2, 28.9, 0), Vector(49.2, 4.2, 0)), False)
sketch11.addGeometry(Part.LineSegment(Vector(49.2, 4.2, 0), Vector(32.6, 4.2, 0)), False)
sketch11.addGeometry(Part.LineSegment(Vector(30, 29.1, 0), Vector(30.6, 28.8, 0)), False)
sketch11.addGeometry(Part.ArcOfCircle(Part.Circle(Vector(30, 27.7, 0), Vector(0, 0, 1), 1.2), math.radians(120), math.radians(420)), False)
sketch11.addGeometry(Part.LineSegment(Vector(29.4, 28.8, 0), Vector(30, 29.1, 0)), False)
sketch11.addGeometry(Part.LineSegment(Vector(30, 6.7, 0), Vector(30.6, 6.4, 0)), False)
sketch11.addGeometry(Part.ArcOfCircle(Part.Circle(Vector(30, 5.3, 0), Vector(0, 0, 1), 1.2), math.radians(120), math.radians(420)), False)
sketch11.addGeometry(Part.LineSegment(Vector(29.4, 6.4, 0), Vector(30, 6.7, 0)), False)
sketch11.addGeometry(Part.LineSegment(Vector(51.9, 6.7, 0), Vector(52.5, 6.4, 0)), False)
sketch11.addGeometry(Part.ArcOfCircle(Part.Circle(Vector(51.9, 5.3, 0), Vector(0, 0, 1), 1.2), math.radians(120), math.radians(420)), False)
sketch11.addGeometry(Part.LineSegment(Vector(51.3, 6.4, 0), Vector(51.9, 6.7, 0)), False)
sketch11.addGeometry(Part.LineSegment(Vector(51.9, 29.1, 0), Vector(52.5, 28.8, 0)), False)
sketch11.addGeometry(Part.ArcOfCircle(Part.Circle(Vector(51.9, 27.7, 0), Vector(0, 0, 1), 1.2), math.radians(120), math.radians(420)), False)
sketch11.addGeometry(Part.LineSegment(Vector(51.3, 28.8, 0), Vector(51.9, 29.1, 0)), False)
sketch11.addConstraint(Sketcher.Constraint("Coincident", 0, 2, 1, 1))
sketch11.addConstraint(Sketcher.Constraint("Coincident", 1, 2, 2, 1))
sketch11.addConstraint(Sketcher.Constraint("Coincident", 2, 2, 3, 1))
sketch11.addConstraint(Sketcher.Constraint("Coincident", 3, 2, 0, 1))
sketch11.addConstraint(Sketcher.Constraint("Tangent", 4, 2, 5, 2))
sketch11.addConstraint(Sketcher.Constraint("Tangent", 5, 1, 6, 1))
sketch11.addConstraint(Sketcher.Constraint("Coincident", 6, 2, 4, 1))
sketch11.addConstraint(Sketcher.Constraint("Tangent", 7, 2, 8, 2))
sketch11.addConstraint(Sketcher.Constraint("Tangent", 8, 1, 9, 1))
sketch11.addConstraint(Sketcher.Constraint("Coincident", 9, 2, 7, 1))
sketch11.addConstraint(Sketcher.Constraint("Tangent", 10, 2, 11, 2))
sketch11.addConstraint(Sketcher.Constraint("Tangent", 11, 1, 12, 1))
sketch11.addConstraint(Sketcher.Constraint("Coincident", 12, 2, 10, 1))
sketch11.addConstraint(Sketcher.Constraint("Tangent", 13, 2, 14, 2))
sketch11.addConstraint(Sketcher.Constraint("Tangent", 14, 1, 15, 1))
sketch11.addConstraint(Sketcher.Constraint("Coincident", 15, 2, 13, 1))
sketch11.addConstraint(Sketcher.Constraint("Vertical", 0))
sketch11.addConstraint(Sketcher.Constraint("Horizontal", 1))
sketch11.addConstraint(Sketcher.Constraint("Vertical", 2))
sketch11.addConstraint(Sketcher.Constraint("Horizontal", 3))
sketch11.addConstraint(Sketcher.Constraint("Equal", 5, 8))
sketch11.addConstraint(Sketcher.Constraint("Equal", 8, 11))
sketch11.addConstraint(Sketcher.Constraint("Equal", 11, 14))
sketch11.addConstraint(Sketcher.Constraint("Parallel", 4, 7))
sketch11.addConstraint(Sketcher.Constraint("Parallel", 6, 9))
sketch11.addConstraint(Sketcher.Constraint("Parallel", 7, 10))
sketch11.addConstraint(Sketcher.Constraint("Parallel", 9, 12))
sketch11.addConstraint(Sketcher.Constraint("Parallel", 10, 13))
sketch11.addConstraint(Sketcher.Constraint("Parallel", 12, 15))
sketch11.addConstraint(Sketcher.Constraint("Horizontal", 8, 3, 11, 3))
sketch11.addConstraint(Sketcher.Constraint("Horizontal", 5, 3, 14, 3))
sketch11.addConstraint(Sketcher.Constraint("Horizontal", 4, 2, 5, 1))
sketch11.addConstraint(Sketcher.Constraint("Vertical", 5, 3, 8, 3))
sketch11.addConstraint(Sketcher.Constraint("Vertical", 11, 3, 14, 3))
sketch11.addConstraint(Sketcher.Constraint("Angle", 4, Q("-30 deg")))
sketch11.addConstraint(Sketcher.Constraint("Radius", 5, 1.25))
sketch11.addConstraint(Sketcher.Constraint("DistanceX", 1, 1, 1, 2, 16.6))
sketch11.addConstraint(Sketcher.Constraint("DistanceY", 0, 1, 0, 2, 24.7))
sketch11.addConstraint(Sketcher.Constraint("DistanceX", -1, 1, 5, 3, 30.0))
sketch11.addConstraint(Sketcher.Constraint("DistanceY", -1, 1, 5, 3, 27.7))
sketch11.addConstraint(Sketcher.Constraint("DistanceY", -1, 1, 8, 3, 5.3))
sketch11.addConstraint(Sketcher.Constraint("DistanceX", -1, 1, 11, 3, 51.9))
sketch11.addConstraint(Sketcher.Constraint("DistanceX", -1, 1, 0, 2, 32.65))
sketch11.addConstraint(Sketcher.Constraint("DistanceY", -1, 1, 0, 2, 28.85))
pocket7 = doc.addObject("PartDesign::Pocket", "Pocket006")
body.addObject(pocket7)
pocket7.Profile = sketch11
pocket7.Length = 5
pocket7.Reversed = True

# Sketch on an angled plane
sketch12 = doc.addObject("Sketcher::SketchObject", "Sketch011")
body.addObject(sketch12)
sketch12.Placement = App.Placement(Vector(125.147492, 131.404867, 0), App.Rotation(Vector(0, 0, -1), Vector(-0.724137931, 0.689655172, 0), Vector(0.689655172, 0.724137931, 0), "ZXY"))
sketch12.addGeometry(Part.Circle(Vector(-16, 68, 0), Vector(0, 0, 1), 6), False)
sketch12.addConstraint(Sketcher.Constraint("Diameter", 0, 12.0))
sketch12.addConstraint(Sketcher.Constraint("DistanceX", 0, 3, -1, 1, 16.5))
sketch12.addConstraint(Sketcher.Constraint("DistanceY", -1, 1, 0, 3, 68.147064))
pocket8 = doc.addObject("PartDesign::Pocket", "Pocket007")
body.addObject(pocket8)
pocket8.Profile = sketch12
pocket8.Length = 5

# Sketch on XY plane
sketch13 = doc.addObject("Sketcher::SketchObject", "Sketch012")
body.addObject(sketch13)
sketch13.AttachmentSupport = (doc.XY_Plane, [""])
sketch13.MapMode = "FlatFace"
sketch13.AttachmentOffset = App.Placement(Vector(0, 0, 3), App.Rotation())
sketch13.addGeometry(Part.LineSegment(Vector(30, 22, 0), Vector(30, -25, 0)), False)
sketch13.addGeometry(Part.LineSegment(Vector(30, -25, 0), Vector(81, -25, 0)), False)
sketch13.addGeometry(Part.LineSegment(Vector(81, -25, 0), Vector(81, 22, 0)), False)
sketch13.addGeometry(Part.LineSegment(Vector(81, 22, 0), Vector(30, 22, 0)), False)
sketch13.addConstraint(Sketcher.Constraint("Coincident", 0, 2, 1, 1))
sketch13.addConstraint(Sketcher.Constraint("Coincident", 1, 2, 2, 1))
sketch13.addConstraint(Sketcher.Constraint("Coincident", 2, 2, 3, 1))
sketch13.addConstraint(Sketcher.Constraint("Coincident", 3, 2, 0, 1))
sketch13.addConstraint(Sketcher.Constraint("Vertical", 0))
sketch13.addConstraint(Sketcher.Constraint("Horizontal", 1))
sketch13.addConstraint(Sketcher.Constraint("Vertical", 2))
sketch13.addConstraint(Sketcher.Constraint("Horizontal", 3))
sketch13.addConstraint(Sketcher.Constraint("DistanceX", 1, 1, 1, 2, 51.0))
sketch13.addConstraint(Sketcher.Constraint("DistanceY", 0, 2, 0, 1, 47.0))
sketch13.addConstraint(Sketcher.Constraint("DistanceY", 0, 2, -1, 1, 25.0))
sketch13.addConstraint(Sketcher.Constraint("DistanceX", -1, 1, 0, 2, 30.299619))
pocket9 = doc.addObject("PartDesign::Pocket", "Pocket008")
body.addObject(pocket9)
pocket9.Profile = sketch13
pocket9.Length = 27
pocket9.Reversed = True

doc.recompute()
